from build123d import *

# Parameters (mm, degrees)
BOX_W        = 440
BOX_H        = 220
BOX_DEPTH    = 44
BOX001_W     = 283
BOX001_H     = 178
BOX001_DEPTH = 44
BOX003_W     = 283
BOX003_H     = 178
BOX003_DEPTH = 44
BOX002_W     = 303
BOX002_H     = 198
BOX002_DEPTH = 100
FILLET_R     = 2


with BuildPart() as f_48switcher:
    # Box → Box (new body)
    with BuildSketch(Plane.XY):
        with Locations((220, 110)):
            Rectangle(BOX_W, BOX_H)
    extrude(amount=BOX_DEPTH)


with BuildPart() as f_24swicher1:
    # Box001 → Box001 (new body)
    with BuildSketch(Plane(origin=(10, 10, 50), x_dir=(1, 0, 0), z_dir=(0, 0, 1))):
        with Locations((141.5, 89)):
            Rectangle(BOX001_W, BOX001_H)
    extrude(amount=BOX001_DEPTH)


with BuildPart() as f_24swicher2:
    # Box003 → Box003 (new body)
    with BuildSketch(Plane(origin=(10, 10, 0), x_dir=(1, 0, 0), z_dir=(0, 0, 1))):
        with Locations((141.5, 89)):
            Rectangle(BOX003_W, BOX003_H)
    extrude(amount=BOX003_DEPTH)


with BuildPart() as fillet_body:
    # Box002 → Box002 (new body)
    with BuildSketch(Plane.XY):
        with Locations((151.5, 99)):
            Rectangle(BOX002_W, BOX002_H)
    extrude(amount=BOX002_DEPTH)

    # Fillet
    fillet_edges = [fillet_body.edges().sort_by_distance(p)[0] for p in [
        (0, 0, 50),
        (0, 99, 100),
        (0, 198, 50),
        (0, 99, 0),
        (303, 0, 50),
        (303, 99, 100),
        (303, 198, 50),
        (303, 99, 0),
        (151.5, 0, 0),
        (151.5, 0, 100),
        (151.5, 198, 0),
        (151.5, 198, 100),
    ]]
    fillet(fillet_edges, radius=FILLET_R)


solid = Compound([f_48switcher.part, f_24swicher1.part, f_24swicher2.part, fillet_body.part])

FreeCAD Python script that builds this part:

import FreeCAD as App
import Part
import Sketcher
Q = App.Units.Quantity


def add_polygon(sketch, points):
    """Adds a closed chain of lines whose ends are joined by coincident constraints."""
    first, n = sketch.GeometryCount, len(points)
    for a, b in zip(points, points[1:] + points[:1]):
        sketch.addGeometry(Part.LineSegment(App.Vector(*a, 0), App.Vector(*b, 0)), False)
    for i in range(n):
        sketch.addConstraint(Sketcher.Constraint("Coincident", first + i, 2, first + (i + 1) % n, 1))

doc = App.newDocument("Part")
body = doc.addObject("PartDesign::Body", "Body")

sketch1 = doc.addObject("Sketcher::SketchObject", "Sketch")
body.addObject(sketch1)
sketch1.AttachmentSupport = (doc.XY_Plane, [""])
sketch1.MapMode = "FlatFace"
add_polygon(sketch1, [(0, 220), (0, 0), (440, 0), (440, 220)])
sketch1.addConstraint([
    Sketcher.Constraint("Vertical", 0),
    Sketcher.Constraint("Horizontal", 1),
    Sketcher.Constraint("Vertical", 2),
    Sketcher.Constraint("Horizontal", 3),
    Sketcher.Constraint("Coincident", 0, 2, -1, 1),
    Sketcher.Constraint("DistanceX", 1, 1, 1, 2, Q("440 mm")),
    Sketcher.Constraint("DistanceY", 0, 2, 0, 1, Q("220 mm")),
])
pad1 = doc.addObject("PartDesign::Pad", "Pad")
body.addObject(pad1)
pad1.Profile = sketch1
pad1.Length = 44
body2 = doc.addObject("PartDesign::Body", "Body001")

sketch2 = doc.addObject("Sketcher::SketchObject", "Sketch001")
body2.addObject(sketch2)
sketch2.AttachmentSupport = (doc.getObject("XY_Plane001"), [""])
sketch2.MapMode = "FlatFace"
sketch2.AttachmentOffset = App.Placement(App.Vector(0, 0, 50), App.Rotation())
add_polygon(sketch2, [(10, 188), (10, 10), (293, 10), (293, 188)])
sketch2.addConstraint([
    Sketcher.Constraint("Vertical", 0),
    Sketcher.Constraint("Horizontal", 1),
    Sketcher.Constraint("Vertical", 2),
    Sketcher.Constraint("Horizontal", 3),
    Sketcher.Constraint("DistanceX", 1, 1, 1, 2, Q("283 mm")),
    Sketcher.Constraint("DistanceY", 0, 2, 0, 1, Q("178 mm")),
    Sketcher.Constraint("DistanceX", -1, 1, 0, 2, Q("10 mm")),
    Sketcher.Constraint("DistanceY", -1, 1, 0, 2, Q("10 mm")),
])
pad2 = doc.addObject("PartDesign::Pad", "Pad001")
body2.addObject(pad2)
pad2.Profile = sketch2
pad2.Length = 44
body3 = doc.addObject("PartDesign::Body", "Body002")

sketch3 = doc.addObject("Sketcher::SketchObject", "Sketch002")
body3.addObject(sketch3)
sketch3.AttachmentSupport = (doc.getObject("XY_Plane002"), [""])
sketch3.MapMode = "FlatFace"
add_polygon(sketch3, [(10, 188), (10, 10), (293, 10), (293, 188)])
sketch3.addConstraint([
    Sketcher.Constraint("Vertical", 0),
    Sketcher.Constraint("Horizontal", 1),
    Sketcher.Constraint("Vertical", 2),
    Sketcher.Constraint("Horizontal", 3),
    Sketcher.Constraint("DistanceX", 1, 1, 1, 2, Q("283 mm")),
    Sketcher.Constraint("DistanceY", 0, 2, 0, 1, Q("178 mm")),
    Sketcher.Constraint("DistanceX", -1, 1, 0, 2, Q("10 mm")),
    Sketcher.Constraint("DistanceY", -1, 1, 0, 2, Q("10 mm")),
])
pad3 = doc.addObject("PartDesign::Pad", "Pad002")
body3.addObject(pad3)
pad3.Profile = sketch3
pad3.Length = 44
body4 = doc.addObject("PartDesign::Body", "Body003")

sketch4 = doc.addObject("Sketcher::SketchObject", "Sketch003")
body4.addObject(sketch4)
sketch4.AttachmentSupport = (doc.getObject("XY_Plane003"), [""])
sketch4.MapMode = "FlatFace"
add_polygon(sketch4, [(0, 198), (0, 0), (303, 0), (303, 198)])
sketch4.addConstraint([
    Sketcher.Constraint("Vertical", 0),
    Sketcher.Constraint("Horizontal", 1),
    Sketcher.Constraint("Vertical", 2),
    Sketcher.Constraint("Horizontal", 3),
    Sketcher.Constraint("Coincident", 0, 2, -1, 1),
    Sketcher.Constraint("DistanceX", 1, 1, 1, 2, Q("303 mm")),
    Sketcher.Constraint("DistanceY", 0, 2, 0, 1, Q("198 mm")),
])
pad4 = doc.addObject("PartDesign::Pad", "Pad003")
body4.addObject(pad4)
pad4.Profile = sketch4
pad4.Length = 100
doc.recompute()

fillet = doc.addObject("PartDesign::Fillet", "Fillet")
body4.addObject(fillet)
fillet.Base = (pad4, ["Edge1"])
fillet.UseAllEdges = True
fillet.Radius = 2

doc.recompute()
